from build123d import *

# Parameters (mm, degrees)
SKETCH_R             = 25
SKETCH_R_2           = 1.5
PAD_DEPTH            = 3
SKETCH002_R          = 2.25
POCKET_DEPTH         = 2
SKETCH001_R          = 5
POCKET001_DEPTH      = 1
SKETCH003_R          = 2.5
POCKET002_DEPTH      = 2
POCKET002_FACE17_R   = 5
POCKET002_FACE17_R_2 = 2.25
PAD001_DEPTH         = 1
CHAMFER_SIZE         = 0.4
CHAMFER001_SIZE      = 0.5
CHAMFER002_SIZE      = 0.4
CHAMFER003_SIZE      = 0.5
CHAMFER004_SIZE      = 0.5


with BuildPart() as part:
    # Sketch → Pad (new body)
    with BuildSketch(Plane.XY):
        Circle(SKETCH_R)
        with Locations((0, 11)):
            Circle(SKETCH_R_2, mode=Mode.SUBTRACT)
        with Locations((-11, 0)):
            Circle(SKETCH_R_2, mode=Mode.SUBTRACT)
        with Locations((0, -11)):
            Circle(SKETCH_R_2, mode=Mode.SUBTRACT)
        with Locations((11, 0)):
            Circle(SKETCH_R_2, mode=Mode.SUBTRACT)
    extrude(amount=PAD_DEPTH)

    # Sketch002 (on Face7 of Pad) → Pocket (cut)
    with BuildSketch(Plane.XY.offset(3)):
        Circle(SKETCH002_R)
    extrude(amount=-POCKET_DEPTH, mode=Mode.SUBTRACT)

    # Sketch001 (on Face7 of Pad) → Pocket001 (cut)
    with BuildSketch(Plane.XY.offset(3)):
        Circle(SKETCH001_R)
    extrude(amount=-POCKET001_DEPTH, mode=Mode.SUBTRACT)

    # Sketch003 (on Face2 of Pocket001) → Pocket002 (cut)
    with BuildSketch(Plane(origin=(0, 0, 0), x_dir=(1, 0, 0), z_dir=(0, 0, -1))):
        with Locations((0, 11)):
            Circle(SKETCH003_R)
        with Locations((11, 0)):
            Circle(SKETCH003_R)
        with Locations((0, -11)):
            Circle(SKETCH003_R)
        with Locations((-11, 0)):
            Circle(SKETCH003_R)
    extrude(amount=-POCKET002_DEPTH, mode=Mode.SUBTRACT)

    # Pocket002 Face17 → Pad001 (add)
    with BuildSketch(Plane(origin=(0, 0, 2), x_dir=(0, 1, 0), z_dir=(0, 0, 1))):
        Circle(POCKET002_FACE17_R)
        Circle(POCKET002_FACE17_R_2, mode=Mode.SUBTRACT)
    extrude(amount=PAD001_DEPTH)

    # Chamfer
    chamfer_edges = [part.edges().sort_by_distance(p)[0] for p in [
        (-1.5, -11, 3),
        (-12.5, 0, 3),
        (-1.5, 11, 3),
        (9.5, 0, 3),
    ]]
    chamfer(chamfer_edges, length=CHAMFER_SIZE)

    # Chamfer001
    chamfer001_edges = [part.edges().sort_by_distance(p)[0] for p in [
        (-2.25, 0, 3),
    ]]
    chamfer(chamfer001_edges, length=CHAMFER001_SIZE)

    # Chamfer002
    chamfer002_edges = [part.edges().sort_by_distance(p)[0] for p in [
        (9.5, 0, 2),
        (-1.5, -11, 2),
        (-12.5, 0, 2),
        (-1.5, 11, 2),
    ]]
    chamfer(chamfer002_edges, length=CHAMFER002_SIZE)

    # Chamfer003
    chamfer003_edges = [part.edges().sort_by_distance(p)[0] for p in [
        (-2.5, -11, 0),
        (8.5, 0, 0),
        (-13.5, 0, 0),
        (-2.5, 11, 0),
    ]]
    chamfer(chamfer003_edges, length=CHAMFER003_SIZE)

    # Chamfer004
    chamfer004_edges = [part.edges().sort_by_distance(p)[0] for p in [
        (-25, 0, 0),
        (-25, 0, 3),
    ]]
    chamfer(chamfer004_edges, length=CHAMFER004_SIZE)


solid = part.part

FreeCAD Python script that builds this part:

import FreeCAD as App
import Part
import Sketcher


def edges_at(feature, points):
    """Names of the edges that pass closest to the given points."""
    edges = feature.Shape.Edges
    near = lambda p: min(range(len(edges)), key=lambda i: edges[i].distToShape(Part.Vertex(*p))[0])
    return sorted({f"Edge{near(p) + 1}" for p in points})

doc = App.newDocument("Part")
body = doc.addObject("PartDesign::Body", "Body")

sketch1 = body.newObject("Sketcher::SketchObject", "Sketch")
sketch1.AttachmentSupport = (doc.getObject("XY_Plane"), [""])
sketch1.MapMode = "FlatFace"
sketch1.addGeometry(Part.Circle(App.Vector(0, 0, 0), App.Vector(0, 0, 1), 25), False)
sketch1.addGeometry(Part.Circle(App.Vector(0, -11, 0), App.Vector(0, 0, 1), 1.5), False)
sketch1.addGeometry(Part.Circle(App.Vector(-11, 0, 0), App.Vector(0, 0, 1), 1.5), False)
sketch1.addGeometry(Part.Circle(App.Vector(11, 0, 0), App.Vector(0, 0, 1), 1.5), False)
sketch1.addGeometry(Part.Circle(App.Vector(0, 11, 0), App.Vector(0, 0, 1), 1.5), False)
sketch1.addConstraint(Sketcher.Constraint("Coincident", 0, 3, -1, 1))
sketch1.addConstraint(Sketcher.Constraint("Equal", 1, 2))
sketch1.addConstraint(Sketcher.Constraint("Equal", 2, 3))
sketch1.addConstraint(Sketcher.Constraint("Equal", 3, 4))
sketch1.addConstraint(Sketcher.Constraint("Symmetric", 2, 3, 3, 3, -1, 1))
sketch1.addConstraint(Sketcher.Constraint("Symmetric", 1, 3, 4, 3, -1, 1))
sketch1.addConstraint(Sketcher.Constraint("PointOnObject", 1, 3, -2))
sketch1.addConstraint(Sketcher.Constraint("PointOnObject", 2, 3, -1))
sketch1.addConstraint(Sketcher.Constraint("Diameter", 0, 50.0))
sketch1.addConstraint(Sketcher.Constraint("Diameter", 1, 3.0))
sketch1.addConstraint(Sketcher.Constraint("DistanceY", 1, 3, -1, 1, 11.0))
sketch1.addConstraint(Sketcher.Constraint("DistanceX", 2, 3, -1, 1, 11.0))
pad1 = body.newObject("PartDesign::Pad", "Pad")
pad1.Profile = sketch1
pad1.Length = 3

sketch2 = body.newObject("Sketcher::SketchObject", "Sketch001")
sketch2.AttachmentSupport = (doc.getObject("XY_Plane"), [""])
sketch2.MapMode = "FlatFace"
sketch2.AttachmentOffset = App.Placement(App.Vector(0, 0, 3), App.Rotation())
sketch2.addGeometry(Part.Circle(App.Vector(0, 0, 0), App.Vector(0, 0, 1), 2.2), False)
sketch2.addConstraint(Sketcher.Constraint("Coincident", 0, 3, -1, 1))
sketch2.addConstraint(Sketcher.Constraint("Diameter", 0, 4.5))
pocket1 = body.newObject("PartDesign::Pocket", "Pocket")
pocket1.Profile = sketch2
pocket1.Length = 2

sketch3 = body.newObject("Sketcher::SketchObject", "Sketch002")
sketch3.AttachmentSupport = (doc.getObject("XY_Plane"), [""])
sketch3.MapMode = "FlatFace"
sketch3.AttachmentOffset = App.Placement(App.Vector(0, 0, 3), App.Rotation())
sketch3.addGeometry(Part.Circle(App.Vector(0, 0, 0), App.Vector(0, 0, 1), 5), False)
sketch3.addConstraint(Sketcher.Constraint("Coincident", 0, 3, -1, 1))
sketch3.addConstraint(Sketcher.Constraint("Diameter", 0, 10.0))
pocket2 = body.newObject("PartDesign::Pocket", "Pocket001")
pocket2.Profile = sketch3
pocket2.Length = 1

sketch4 = body.newObject("Sketcher::SketchObject", "Sketch003")
sketch4.AttachmentSupport = (doc.getObject("XY_Plane"), [""])
sketch4.MapMode = "FlatFace"
sketch4.addGeometry(Part.Circle(App.Vector(0, -11, 0), App.Vector(0, 0, 1), 2.5), False)
sketch4.addGeometry(Part.Circle(App.Vector(11, 0, 0), App.Vector(0, 0, 1), 2.5), False)
sketch4.addGeometry(Part.Circle(App.Vector(0, 11, 0), App.Vector(0, 0, 1), 2.5), False)
sketch4.addGeometry(Part.Circle(App.Vector(-11, 0, 0), App.Vector(0, 0, 1), 2.5), False)
sketch4.addConstraint(Sketcher.Constraint("Equal", 0, 1))
sketch4.addConstraint(Sketcher.Constraint("Equal", 1, 2))
sketch4.addConstraint(Sketcher.Constraint("Equal", 2, 3))
sketch4.addConstraint(Sketcher.Constraint("Symmetric", 0, 3, 2, 3, -1, 1))
sketch4.addConstraint(Sketcher.Constraint("Symmetric", 1, 3, 3, 3, -1, 1))
sketch4.addConstraint(Sketcher.Constraint("PointOnObject", 0, 3, -2))
sketch4.addConstraint(Sketcher.Constraint("PointOnObject", 1, 3, -1))
sketch4.addConstraint(Sketcher.Constraint("Diameter", 0, 5.0))
sketch4.addConstraint(Sketcher.Constraint("DistanceY", 0, 3, -1, 1, 11.0))
sketch4.addConstraint(Sketcher.Constraint("DistanceX", -1, 1, 1, 3, 11.0))
pocket3 = body.newObject("PartDesign::Pocket", "Pocket002")
pocket3.Profile = sketch4
pocket3.Length = 2
pocket3.Reversed = True

sketch5 = body.newObject("Sketcher::SketchObject", "Sketch004")
sketch5.AttachmentSupport = (doc.getObject("XY_Plane"), [""])
sketch5.MapMode = "FlatFace"
sketch5.AttachmentOffset = App.Placement(App.Vector(0, 0, 2), App.Rotation())
sketch5.addGeometry(Part.Circle(App.Vector(0, 0, 0), App.Vector(0, 0, 1), 5), False)
sketch5.addGeometry(Part.Circle(App.Vector(0, 0, 0), App.Vector(0, 0, 1), 2.2), False)
sketch5.addConstraint(Sketcher.Constraint("Coincident", 0, 3, -1, 1))
sketch5.addConstraint(Sketcher.Constraint("Coincident", 1, 3, -1, 1))
sketch5.addConstraint(Sketcher.Constraint("Diameter", 0, 10.0))
sketch5.addConstraint(Sketcher.Constraint("Diameter", 1, 4.5))
pad2 = body.newObject("PartDesign::Pad", "Pad001")
pad2.Profile = sketch5
pad2.Length = 1
doc.recompute()

chamfer = body.newObject("PartDesign::Chamfer", "Chamfer")
chamfer.Base = (pad2, edges_at(pad2, [
    (-1.5, -11, 3),
    (-12.5, 0, 3),
    (-1.5, 11, 3),
    (9.5, 0, 3),
]))
chamfer.Size = 0.4
doc.recompute()

chamfer2 = body.newObject("PartDesign::Chamfer", "Chamfer001")
chamfer2.Base = (chamfer, edges_at(chamfer, [(0, -2.25, 3)]))
chamfer2.Size = 0.5
doc.recompute()

chamfer3 = body.newObject("PartDesign::Chamfer", "Chamfer002")
chamfer3.Base = (chamfer2, edges_at(chamfer2, [
    (9.5, 0, 2),
    (-1.5, -11, 2),
    (-12.5, 0, 2),
    (-1.5, 11, 2),
]))
chamfer3.Size = 0.4
doc.recompute()

chamfer4 = body.newObject("PartDesign::Chamfer", "Chamfer003")
chamfer4.Base = (chamfer3, edges_at(chamfer3, [
    (-2.5, -11, 0),
    (8.5, 0, 0),
    (-13.5, 0, 0),
    (-2.5, 11, 0),
]))
chamfer4.Size = 0.5
doc.recompute()

chamfer5 = body.newObject("PartDesign::Chamfer", "Chamfer004")
chamfer5.Base = (chamfer4, edges_at(chamfer4, [(-25, 0, 0), (-25, 0, 3)]))
chamfer5.Size = 0.5

doc.recompute()
